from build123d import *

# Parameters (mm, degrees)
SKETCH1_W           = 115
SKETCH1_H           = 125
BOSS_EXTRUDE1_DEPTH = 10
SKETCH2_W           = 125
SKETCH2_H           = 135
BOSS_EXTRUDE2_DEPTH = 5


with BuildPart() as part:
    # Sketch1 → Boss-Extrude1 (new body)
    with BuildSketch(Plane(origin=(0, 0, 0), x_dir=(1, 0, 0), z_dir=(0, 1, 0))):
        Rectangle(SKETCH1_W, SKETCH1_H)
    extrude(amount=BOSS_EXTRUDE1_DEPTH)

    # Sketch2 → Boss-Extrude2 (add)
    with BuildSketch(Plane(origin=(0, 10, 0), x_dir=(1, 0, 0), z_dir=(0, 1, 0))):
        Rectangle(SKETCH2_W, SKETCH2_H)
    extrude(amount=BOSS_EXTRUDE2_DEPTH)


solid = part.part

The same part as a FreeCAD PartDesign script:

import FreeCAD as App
import Part
import Sketcher

doc = App.newDocument("Part")
body = doc.addObject("PartDesign::Body", "Body")

# Sketch on XZ plane
sketch1 = doc.addObject("Sketcher::SketchObject", "Sketch")
body.addObject(sketch1)
sketch1.AttachmentSupport = (doc.XZ_Plane, [""])
sketch1.MapMode = "FlatFace"
sketch1.addGeometry([
    Part.LineSegment(App.Vector(-57.5, -62.5, 0), App.Vector(-57.5, 62.5, 0)),
    Part.LineSegment(App.Vector(-57.5, 62.5, 0), App.Vector(57.5, 62.5, 0)),
    Part.LineSegment(App.Vector(57.5, 62.5, 0), App.Vector(57.5, -62.5, 0)),
    Part.LineSegment(App.Vector(57.5, -62.5, 0), App.Vector(-57.5, -62.5, 0)),
], False)
sketch1.addConstraint([
    Sketcher.Constraint("Coincident", 0, 2, 1, 1),
    Sketcher.Constraint("Coincident", 1, 2, 2, 1),
    Sketcher.Constraint("Coincident", 2, 2, 3, 1),
    Sketcher.Constraint("Coincident", 3, 2, 0, 1),
    Sketcher.Constraint("Vertical", 0),
    Sketcher.Constraint("Horizontal", 1),
    Sketcher.Constraint("Vertical", 2),
    Sketcher.Constraint("Horizontal", 3),
    Sketcher.Constraint("Symmetric", 0, 2, 2, 2, -1, 1),
    Sketcher.Constraint("DistanceX", 1, 1, 1, 2, 115.0),
    Sketcher.Constraint("DistanceY", 0, 1, 0, 2, 125.0),
])
pad1 = doc.addObject("PartDesign::Pad", "Pad")
body.addObject(pad1)
pad1.Profile = sketch1
pad1.Length = 10
pad1.Reversed = True

# Sketch on XZ plane
sketch2 = doc.addObject("Sketcher::SketchObject", "Sketch001")
body.addObject(sketch2)
sketch2.AttachmentSupport = (doc.XZ_Plane, [""])
sketch2.MapMode = "FlatFace"
sketch2.AttachmentOffset = App.Placement(App.Vector(0, 0, -10), App.Rotation())
sketch2.addGeometry([
    Part.LineSegment(App.Vector(-62.5, -67.5, 0), App.Vector(-62.5, 67.5, 0)),
    Part.LineSegment(App.Vector(-62.5, 67.5, 0), App.Vector(62.5, 67.5, 0)),
    Part.LineSegment(App.Vector(62.5, 67.5, 0), App.Vector(62.5, -67.5, 0)),
    Part.LineSegment(App.Vector(62.5, -67.5, 0), App.Vector(-62.5, -67.5, 0)),
], False)
sketch2.addConstraint([
    Sketcher.Constraint("Coincident", 0, 2, 1, 1),
    Sketcher.Constraint("Coincident", 1, 2, 2, 1),
    Sketcher.Constraint("Coincident", 2, 2, 3, 1),
    Sketcher.Constraint("Coincident", 3, 2, 0, 1),
    Sketcher.Constraint("Vertical", 0),
    Sketcher.Constraint("Horizontal", 1),
    Sketcher.Constraint("Vertical", 2),
    Sketcher.Constraint("Horizontal", 3),
    Sketcher.Constraint("Symmetric", 0, 2, 2, 2, -1, 1),
    Sketcher.Constraint("DistanceX", 1, 1, 1, 2, 125.0),
    Sketcher.Constraint("DistanceY", 0, 1, 0, 2, 135.0),
])
pad2 = doc.addObject("PartDesign::Pad", "Pad001")
body.addObject(pad2)
pad2.Profile = sketch2
pad2.Length = 5
pad2.Reversed = True

doc.recompute()
